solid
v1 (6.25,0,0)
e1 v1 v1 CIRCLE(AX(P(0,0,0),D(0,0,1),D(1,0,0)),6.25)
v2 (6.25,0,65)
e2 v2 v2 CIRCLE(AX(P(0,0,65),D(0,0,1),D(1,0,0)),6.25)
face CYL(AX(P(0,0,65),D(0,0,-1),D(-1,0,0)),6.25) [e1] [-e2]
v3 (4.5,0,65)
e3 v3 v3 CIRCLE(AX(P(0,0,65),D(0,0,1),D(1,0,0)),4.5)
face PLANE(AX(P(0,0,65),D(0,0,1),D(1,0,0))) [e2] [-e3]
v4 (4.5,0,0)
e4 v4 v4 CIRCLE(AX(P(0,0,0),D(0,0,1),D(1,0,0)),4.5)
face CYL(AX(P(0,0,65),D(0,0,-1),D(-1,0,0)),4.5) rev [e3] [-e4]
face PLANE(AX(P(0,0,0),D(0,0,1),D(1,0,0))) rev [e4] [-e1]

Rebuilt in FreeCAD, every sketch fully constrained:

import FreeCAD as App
import Part
import Sketcher

V = App.Vector

doc = App.newDocument("Part")
body = doc.addObject("PartDesign::Body", "Body")

# Sketch on XY plane
sketch1 = doc.addObject("Sketcher::SketchObject", "Sketch")
body.addObject(sketch1)
sketch1.AttachmentSupport = (doc.XY_Plane, [""])
sketch1.MapMode = "FlatFace"
sketch1.addGeometry(Part.Circle(V(0, 0, 0), V(0, 0, 1), 6.2), False)
sketch1.addGeometry(Part.Circle(V(0, 0, 0), V(0, 0, 1), 4.5), False)
sketch1.addConstraint(Sketcher.Constraint("Coincident", 0, 3, -1, 1))
sketch1.addConstraint(Sketcher.Constraint("Coincident", 1, 3, -1, 1))
sketch1.addConstraint(Sketcher.Constraint("Diameter", 1, 9.0))
sketch1.addConstraint(Sketcher.Constraint("Diameter", 0, 12.5))
pad1 = doc.addObject("PartDesign::Pad", "Pad")
body.addObject(pad1)
pad1.Profile = sketch1
pad1.Length = 65

doc.recompute()
